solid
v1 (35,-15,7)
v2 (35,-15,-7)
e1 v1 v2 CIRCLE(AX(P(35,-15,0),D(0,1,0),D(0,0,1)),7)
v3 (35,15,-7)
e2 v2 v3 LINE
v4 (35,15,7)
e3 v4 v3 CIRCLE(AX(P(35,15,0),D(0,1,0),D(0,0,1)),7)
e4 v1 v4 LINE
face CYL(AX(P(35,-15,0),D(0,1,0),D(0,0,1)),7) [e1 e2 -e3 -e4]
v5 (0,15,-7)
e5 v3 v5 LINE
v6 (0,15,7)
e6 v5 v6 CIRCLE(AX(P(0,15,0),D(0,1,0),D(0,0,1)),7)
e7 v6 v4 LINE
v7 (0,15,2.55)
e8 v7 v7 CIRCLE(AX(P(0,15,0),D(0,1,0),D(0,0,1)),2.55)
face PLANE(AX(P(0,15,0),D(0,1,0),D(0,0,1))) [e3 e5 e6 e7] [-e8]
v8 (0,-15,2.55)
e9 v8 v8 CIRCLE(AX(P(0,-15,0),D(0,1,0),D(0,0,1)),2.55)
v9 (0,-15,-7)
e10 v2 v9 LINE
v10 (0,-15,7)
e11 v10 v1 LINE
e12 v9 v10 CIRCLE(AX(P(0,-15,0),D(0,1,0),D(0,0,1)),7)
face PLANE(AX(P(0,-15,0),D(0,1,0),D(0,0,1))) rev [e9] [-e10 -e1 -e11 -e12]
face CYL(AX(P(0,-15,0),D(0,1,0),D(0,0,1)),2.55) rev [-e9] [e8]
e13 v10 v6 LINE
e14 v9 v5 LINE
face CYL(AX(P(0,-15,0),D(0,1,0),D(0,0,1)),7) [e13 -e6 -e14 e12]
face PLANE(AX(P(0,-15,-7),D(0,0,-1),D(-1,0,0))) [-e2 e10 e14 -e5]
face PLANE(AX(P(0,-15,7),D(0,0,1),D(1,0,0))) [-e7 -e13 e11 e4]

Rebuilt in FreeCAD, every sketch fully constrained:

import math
import FreeCAD as App
import Part
import Sketcher
Q = App.Units.Quantity

doc = App.newDocument("Part")
body = doc.addObject("PartDesign::Body", "Body")

sketch1 = body.newObject("Sketcher::SketchObject", "Sketch")
sketch1.AttachmentSupport = (doc.getObject("XZ_Plane"), [""])
sketch1.MapMode = "FlatFace"
sketch1.addGeometry([
    Part.LineSegment(App.Vector(35, -7, 0), App.Vector(0, -7, 0)),
    Part.ArcOfCircle(Part.Circle(App.Vector(0, 0, 0), App.Vector(0, 0, 1), 7), math.radians(90), math.radians(270)),
    Part.LineSegment(App.Vector(0, 7, 0), App.Vector(35, 7, 0)),
    Part.ArcOfCircle(Part.Circle(App.Vector(35, 0, 0), App.Vector(0, 0, 1), 7), math.radians(-90), math.radians(90)),
    Part.Circle(App.Vector(0, 0, 0), App.Vector(0, 0, 1), 2.5),
], False)
sketch1.addConstraint([
    Sketcher.Constraint("Tangent", 0, 2, 1, 2),
    Sketcher.Constraint("Tangent", 1, 1, 2, 1),
    Sketcher.Constraint("Tangent", 2, 2, 3, 2),
    Sketcher.Constraint("Tangent", 3, 1, 0, 1),
    Sketcher.Constraint("Horizontal", 0),
    Sketcher.Constraint("Horizontal", 2),
    Sketcher.Constraint("Coincident", 1, 3, -1, 1),
    Sketcher.Constraint("Coincident", 4, 3, -1, 1),
    Sketcher.Constraint("Radius", 1, Q("7 mm")),
    Sketcher.Constraint("Diameter", 4, Q("5.1 mm")),
    Sketcher.Constraint("DistanceX", 0, 2, 0, 1, Q("35 mm")),
])
pad1 = body.newObject("PartDesign::Pad", "Pad")
pad1.Profile = sketch1
pad1.Type = "TwoLengths"
pad1.Length = 15
pad1.Length2 = 15
pad1.Reversed = True

doc.recompute()
